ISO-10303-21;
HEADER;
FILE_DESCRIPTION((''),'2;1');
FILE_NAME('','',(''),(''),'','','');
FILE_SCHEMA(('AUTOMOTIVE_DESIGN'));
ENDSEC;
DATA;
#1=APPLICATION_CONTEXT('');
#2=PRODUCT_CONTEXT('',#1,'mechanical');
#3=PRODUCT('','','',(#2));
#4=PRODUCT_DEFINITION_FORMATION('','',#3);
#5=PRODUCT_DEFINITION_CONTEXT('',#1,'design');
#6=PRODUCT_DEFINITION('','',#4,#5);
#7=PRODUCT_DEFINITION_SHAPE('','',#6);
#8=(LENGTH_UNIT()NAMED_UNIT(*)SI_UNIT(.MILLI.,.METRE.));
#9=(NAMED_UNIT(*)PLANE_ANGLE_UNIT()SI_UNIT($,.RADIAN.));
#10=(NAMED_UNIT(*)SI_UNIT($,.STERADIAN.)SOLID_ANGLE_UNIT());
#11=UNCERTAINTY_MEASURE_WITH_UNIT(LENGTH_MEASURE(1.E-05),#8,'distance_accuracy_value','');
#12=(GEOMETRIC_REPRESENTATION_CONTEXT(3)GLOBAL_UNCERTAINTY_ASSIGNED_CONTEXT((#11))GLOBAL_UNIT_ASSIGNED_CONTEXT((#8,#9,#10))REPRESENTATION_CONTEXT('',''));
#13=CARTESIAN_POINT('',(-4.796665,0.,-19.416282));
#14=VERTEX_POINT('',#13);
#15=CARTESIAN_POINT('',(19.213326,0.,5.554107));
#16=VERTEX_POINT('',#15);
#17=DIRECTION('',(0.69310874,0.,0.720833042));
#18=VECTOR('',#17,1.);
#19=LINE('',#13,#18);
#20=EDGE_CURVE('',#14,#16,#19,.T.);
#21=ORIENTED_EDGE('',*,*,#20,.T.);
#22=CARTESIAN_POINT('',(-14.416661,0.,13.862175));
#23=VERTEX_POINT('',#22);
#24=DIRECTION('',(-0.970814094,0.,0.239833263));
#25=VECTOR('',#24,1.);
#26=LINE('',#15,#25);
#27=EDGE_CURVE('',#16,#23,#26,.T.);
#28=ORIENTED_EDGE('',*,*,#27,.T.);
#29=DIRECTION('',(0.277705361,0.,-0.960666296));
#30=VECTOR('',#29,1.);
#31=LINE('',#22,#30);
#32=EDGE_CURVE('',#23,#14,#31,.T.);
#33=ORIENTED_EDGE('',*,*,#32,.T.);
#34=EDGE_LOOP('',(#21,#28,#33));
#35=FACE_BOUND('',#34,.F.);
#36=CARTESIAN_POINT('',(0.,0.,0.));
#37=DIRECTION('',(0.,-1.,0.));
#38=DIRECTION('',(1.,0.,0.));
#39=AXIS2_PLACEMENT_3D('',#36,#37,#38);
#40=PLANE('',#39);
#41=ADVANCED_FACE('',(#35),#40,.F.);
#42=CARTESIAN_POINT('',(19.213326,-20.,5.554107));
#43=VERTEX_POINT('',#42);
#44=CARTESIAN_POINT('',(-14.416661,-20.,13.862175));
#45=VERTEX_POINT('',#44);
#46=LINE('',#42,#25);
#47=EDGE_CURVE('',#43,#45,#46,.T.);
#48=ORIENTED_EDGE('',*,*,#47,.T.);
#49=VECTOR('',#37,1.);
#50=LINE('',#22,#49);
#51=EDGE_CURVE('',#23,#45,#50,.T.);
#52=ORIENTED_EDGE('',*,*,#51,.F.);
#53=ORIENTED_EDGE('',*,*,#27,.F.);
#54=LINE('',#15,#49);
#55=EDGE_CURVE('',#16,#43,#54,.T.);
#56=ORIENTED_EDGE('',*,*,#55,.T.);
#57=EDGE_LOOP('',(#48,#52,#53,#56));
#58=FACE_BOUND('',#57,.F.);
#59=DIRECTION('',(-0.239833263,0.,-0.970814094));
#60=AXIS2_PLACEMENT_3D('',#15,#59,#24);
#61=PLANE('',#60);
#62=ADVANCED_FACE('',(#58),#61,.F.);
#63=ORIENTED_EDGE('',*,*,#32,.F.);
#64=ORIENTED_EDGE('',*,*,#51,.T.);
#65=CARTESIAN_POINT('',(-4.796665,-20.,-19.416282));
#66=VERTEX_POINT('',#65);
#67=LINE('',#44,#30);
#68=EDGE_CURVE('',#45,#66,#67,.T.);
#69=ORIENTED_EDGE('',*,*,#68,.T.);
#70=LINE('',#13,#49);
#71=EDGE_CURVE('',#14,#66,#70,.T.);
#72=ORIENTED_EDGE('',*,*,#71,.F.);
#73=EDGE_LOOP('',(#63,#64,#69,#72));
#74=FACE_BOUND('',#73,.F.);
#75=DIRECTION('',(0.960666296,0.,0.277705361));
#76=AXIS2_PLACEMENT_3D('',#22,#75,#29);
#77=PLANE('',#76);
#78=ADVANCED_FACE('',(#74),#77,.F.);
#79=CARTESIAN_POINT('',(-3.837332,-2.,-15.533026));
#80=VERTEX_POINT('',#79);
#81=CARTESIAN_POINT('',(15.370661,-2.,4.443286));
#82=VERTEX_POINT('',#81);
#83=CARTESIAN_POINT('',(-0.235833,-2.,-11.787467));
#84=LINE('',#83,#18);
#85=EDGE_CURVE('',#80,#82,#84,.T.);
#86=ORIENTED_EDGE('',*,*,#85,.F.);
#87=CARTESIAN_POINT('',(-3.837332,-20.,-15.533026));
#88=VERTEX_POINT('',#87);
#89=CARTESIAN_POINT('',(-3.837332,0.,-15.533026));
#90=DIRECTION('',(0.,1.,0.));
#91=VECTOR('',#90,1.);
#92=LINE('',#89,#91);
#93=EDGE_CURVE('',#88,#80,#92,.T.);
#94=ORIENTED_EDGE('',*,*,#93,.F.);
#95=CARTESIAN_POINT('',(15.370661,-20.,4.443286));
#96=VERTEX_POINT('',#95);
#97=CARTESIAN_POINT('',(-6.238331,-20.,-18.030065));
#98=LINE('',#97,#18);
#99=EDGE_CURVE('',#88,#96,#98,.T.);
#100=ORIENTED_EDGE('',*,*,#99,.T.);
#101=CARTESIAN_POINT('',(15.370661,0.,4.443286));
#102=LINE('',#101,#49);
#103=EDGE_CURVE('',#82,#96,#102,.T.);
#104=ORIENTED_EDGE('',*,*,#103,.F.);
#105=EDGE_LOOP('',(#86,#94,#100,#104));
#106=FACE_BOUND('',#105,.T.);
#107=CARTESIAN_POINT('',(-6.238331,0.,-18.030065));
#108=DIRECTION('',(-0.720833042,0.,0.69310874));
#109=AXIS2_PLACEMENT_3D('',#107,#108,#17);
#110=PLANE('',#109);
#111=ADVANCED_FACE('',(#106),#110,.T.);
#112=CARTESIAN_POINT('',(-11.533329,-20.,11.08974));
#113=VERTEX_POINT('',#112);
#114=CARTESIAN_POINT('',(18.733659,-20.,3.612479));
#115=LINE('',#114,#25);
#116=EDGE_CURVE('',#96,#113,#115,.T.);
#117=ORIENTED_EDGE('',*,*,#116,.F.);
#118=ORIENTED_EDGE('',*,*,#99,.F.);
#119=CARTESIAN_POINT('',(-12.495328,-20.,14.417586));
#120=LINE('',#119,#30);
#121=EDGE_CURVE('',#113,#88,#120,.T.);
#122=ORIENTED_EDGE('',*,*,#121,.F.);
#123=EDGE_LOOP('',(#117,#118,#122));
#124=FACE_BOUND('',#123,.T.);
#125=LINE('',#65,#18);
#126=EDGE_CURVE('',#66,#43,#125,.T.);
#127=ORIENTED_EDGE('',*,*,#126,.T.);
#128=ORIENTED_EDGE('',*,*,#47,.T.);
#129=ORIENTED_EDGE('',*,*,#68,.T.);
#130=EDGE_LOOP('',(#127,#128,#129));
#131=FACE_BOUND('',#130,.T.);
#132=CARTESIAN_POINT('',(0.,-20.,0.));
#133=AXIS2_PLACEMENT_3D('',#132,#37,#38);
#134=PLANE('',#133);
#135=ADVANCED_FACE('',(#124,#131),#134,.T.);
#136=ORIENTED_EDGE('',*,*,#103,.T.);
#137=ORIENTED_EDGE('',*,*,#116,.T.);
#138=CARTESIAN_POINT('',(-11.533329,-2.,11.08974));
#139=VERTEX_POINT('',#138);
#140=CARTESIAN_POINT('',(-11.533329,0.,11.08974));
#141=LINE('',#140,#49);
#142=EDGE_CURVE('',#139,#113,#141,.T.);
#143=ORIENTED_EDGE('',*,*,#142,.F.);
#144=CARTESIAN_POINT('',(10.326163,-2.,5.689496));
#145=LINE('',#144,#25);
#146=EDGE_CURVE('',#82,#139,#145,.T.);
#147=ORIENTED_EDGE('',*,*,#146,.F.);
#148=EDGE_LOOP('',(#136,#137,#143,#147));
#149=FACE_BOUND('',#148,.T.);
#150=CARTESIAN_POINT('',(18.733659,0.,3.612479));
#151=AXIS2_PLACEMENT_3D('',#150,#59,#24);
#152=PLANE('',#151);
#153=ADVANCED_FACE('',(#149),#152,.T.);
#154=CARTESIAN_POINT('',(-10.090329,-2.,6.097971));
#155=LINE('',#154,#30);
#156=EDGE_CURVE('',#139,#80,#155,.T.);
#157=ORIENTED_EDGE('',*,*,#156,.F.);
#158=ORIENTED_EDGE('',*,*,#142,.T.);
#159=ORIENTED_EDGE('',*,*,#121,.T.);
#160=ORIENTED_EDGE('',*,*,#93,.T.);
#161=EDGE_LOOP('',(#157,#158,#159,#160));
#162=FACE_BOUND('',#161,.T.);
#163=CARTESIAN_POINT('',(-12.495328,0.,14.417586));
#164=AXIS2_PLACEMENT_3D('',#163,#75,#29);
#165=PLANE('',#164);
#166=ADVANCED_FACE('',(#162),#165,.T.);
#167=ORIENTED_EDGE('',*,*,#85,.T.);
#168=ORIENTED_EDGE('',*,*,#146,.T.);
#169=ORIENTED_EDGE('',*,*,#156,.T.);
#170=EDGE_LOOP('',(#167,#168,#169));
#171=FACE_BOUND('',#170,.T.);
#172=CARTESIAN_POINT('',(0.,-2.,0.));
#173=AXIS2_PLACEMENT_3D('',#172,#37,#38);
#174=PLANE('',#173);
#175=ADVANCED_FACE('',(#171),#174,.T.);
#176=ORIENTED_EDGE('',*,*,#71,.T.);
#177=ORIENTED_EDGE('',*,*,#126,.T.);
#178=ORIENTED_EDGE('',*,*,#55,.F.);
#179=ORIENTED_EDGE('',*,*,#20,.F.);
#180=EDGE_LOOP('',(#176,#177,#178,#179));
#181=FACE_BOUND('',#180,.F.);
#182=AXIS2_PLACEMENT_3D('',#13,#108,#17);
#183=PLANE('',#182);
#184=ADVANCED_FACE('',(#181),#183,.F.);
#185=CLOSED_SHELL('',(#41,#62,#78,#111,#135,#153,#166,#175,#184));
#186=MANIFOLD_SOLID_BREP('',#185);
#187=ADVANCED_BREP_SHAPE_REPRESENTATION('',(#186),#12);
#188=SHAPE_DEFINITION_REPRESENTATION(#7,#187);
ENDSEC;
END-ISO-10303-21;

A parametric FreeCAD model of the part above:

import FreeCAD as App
import Part
import Sketcher


def faces_at(feature, points):
    """Names of the faces that lie closest to the given points."""
    faces = feature.Shape.Faces
    near = lambda p: min(range(len(faces)), key=lambda i: faces[i].distToShape(Part.Vertex(*p))[0])
    return sorted({f"Face{near(p) + 1}" for p in points})


def add_polygon(sketch, points):
    """Adds a closed chain of lines whose ends are joined by coincident constraints."""
    first, n = sketch.GeometryCount, len(points)
    for a, b in zip(points, points[1:] + points[:1]):
        sketch.addGeometry(Part.LineSegment(App.Vector(*a, 0), App.Vector(*b, 0)), False)
    for i in range(n):
        sketch.addConstraint(Sketcher.Constraint("Coincident", first + i, 2, first + (i + 1) % n, 1))

doc = App.newDocument("Part")
body = doc.addObject("PartDesign::Body", "Body")

sketch1 = body.newObject("Sketcher::SketchObject", "Sketch")
sketch1.AttachmentSupport = (doc.getObject("XZ_Plane"), [""])
sketch1.MapMode = "FlatFace"
add_polygon(sketch1, [(-5, -19), (19, 6), (-14, 14)])
sketch1.addConstraint(Sketcher.Constraint("Equal", 0, 1))
sketch1.addConstraint(Sketcher.Constraint("Equal", 1, 2))
sketch1.addConstraint(Sketcher.Constraint("DistanceX", 1, 2, -1, 1, 14.416661))
sketch1.addConstraint(Sketcher.Constraint("DistanceY", 2, 2, -1, 1, 19.416282))
sketch1.addConstraint(Sketcher.Constraint("DistanceX", 2, 2, 0, 2, 24.009991))
sketch1.addConstraint(Sketcher.Constraint("DistanceY", 2, 2, 0, 2, 24.970389))
pad1 = body.newObject("PartDesign::Pad", "Pad")
pad1.Profile = sketch1
pad1.Length = 20
doc.recompute()

thickness = body.newObject("PartDesign::Thickness", "Thickness")
thickness.Base = (pad1, faces_at(pad1, [(2.398, -20, -2.777)]))
thickness.Value = 2
thickness.Reversed = True
thickness.Join = "Arc"

doc.recompute()
